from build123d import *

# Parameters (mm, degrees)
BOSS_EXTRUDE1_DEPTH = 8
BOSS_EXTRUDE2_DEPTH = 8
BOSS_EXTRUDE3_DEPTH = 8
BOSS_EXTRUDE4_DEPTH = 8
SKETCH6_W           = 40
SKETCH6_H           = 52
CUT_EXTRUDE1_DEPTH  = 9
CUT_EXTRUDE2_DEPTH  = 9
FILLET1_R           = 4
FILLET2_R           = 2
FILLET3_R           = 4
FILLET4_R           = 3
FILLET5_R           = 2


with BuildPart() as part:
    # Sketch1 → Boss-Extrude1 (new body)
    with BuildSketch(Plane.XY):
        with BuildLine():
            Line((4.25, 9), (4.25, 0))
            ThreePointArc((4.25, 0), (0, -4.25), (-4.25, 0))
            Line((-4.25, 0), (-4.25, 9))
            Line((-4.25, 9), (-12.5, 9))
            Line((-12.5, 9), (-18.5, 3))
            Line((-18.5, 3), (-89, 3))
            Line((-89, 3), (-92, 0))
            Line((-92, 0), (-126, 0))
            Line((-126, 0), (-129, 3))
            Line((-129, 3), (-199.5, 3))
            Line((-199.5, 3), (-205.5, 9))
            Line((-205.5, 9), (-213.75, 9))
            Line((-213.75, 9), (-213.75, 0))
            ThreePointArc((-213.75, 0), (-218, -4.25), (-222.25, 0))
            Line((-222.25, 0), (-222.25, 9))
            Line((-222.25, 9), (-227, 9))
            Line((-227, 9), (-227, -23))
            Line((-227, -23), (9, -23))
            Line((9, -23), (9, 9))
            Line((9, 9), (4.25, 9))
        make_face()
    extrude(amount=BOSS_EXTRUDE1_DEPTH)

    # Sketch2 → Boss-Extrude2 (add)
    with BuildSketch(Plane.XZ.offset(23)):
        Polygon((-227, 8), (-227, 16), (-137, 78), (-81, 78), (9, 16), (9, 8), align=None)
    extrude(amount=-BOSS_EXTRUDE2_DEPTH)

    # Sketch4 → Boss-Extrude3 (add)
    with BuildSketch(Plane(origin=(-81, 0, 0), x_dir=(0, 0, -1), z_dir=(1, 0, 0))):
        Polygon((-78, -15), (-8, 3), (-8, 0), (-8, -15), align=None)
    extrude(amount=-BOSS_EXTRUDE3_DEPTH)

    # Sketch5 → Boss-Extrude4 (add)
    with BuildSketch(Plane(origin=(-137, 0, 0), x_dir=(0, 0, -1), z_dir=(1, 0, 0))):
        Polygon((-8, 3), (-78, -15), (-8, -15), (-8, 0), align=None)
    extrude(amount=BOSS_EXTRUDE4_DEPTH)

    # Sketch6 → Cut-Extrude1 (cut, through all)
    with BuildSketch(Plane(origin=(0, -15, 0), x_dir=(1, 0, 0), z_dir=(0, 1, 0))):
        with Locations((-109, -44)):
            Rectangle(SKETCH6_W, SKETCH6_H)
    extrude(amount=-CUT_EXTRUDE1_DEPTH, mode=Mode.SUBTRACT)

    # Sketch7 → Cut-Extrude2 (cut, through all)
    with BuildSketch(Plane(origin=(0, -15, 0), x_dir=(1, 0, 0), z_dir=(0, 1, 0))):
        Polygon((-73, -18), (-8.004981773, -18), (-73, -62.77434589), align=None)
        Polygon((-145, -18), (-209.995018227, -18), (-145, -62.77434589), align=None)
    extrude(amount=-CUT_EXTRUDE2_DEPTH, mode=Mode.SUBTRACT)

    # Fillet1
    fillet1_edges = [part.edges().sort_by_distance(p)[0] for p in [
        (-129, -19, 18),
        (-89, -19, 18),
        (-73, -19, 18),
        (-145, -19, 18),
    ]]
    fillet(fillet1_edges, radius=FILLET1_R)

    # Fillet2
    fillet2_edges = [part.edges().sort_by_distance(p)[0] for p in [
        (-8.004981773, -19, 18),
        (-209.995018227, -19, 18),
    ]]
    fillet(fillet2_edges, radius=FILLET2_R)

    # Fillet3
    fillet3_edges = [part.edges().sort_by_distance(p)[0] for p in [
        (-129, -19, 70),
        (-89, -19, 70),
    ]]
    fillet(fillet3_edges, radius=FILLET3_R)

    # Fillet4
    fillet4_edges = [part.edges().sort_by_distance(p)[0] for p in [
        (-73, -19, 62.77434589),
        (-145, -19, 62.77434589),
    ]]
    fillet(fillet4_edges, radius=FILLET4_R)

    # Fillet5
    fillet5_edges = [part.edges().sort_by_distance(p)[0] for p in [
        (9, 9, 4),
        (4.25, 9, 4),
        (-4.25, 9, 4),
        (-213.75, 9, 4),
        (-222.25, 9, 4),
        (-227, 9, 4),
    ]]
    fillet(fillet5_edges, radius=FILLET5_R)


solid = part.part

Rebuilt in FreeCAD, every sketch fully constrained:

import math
import FreeCAD as App
import Part
import Sketcher

V = App.Vector


def edges_at(feature, points):
    """Names of the edges that pass closest to the given points."""
    edges = feature.Shape.Edges
    near = lambda p: min(range(len(edges)), key=lambda i: edges[i].distToShape(Part.Vertex(*p))[0])
    return sorted({f"Edge{near(p) + 1}" for p in points})

doc = App.newDocument("Part")
params = doc.addObject("Spreadsheet::Sheet", "Params")
for row, (alias, value) in enumerate([
    ("sketch1_width", "34 mm"),
    ("sketch1_width2", "236 mm"),
    ("sketch1_height", "9 mm"),
    ("sketch1_height2", "32 mm"),
    ("sketch1_radius", "4.25 mm"),
    ("pad1_length", "8 mm"),
    ("sketch2_width", "236 mm"),
    ("sketch2_width2", "56 mm"),
    ("sketch2_height", "8 mm"),
    ("pad2_length", "8 mm"),
    ("sketch3_width", "18 mm"),
    ("sketch3_height", "70 mm"),
    ("pad3_length", "8 mm"),
    ("sketch4_width", "18 mm"),
    ("sketch4_height", "70 mm"),
    ("pad4_length", "8 mm"),
    ("sketch5_width", "40 mm"),
    ("sketch5_height", "52 mm"),
    ("fillet_radius", "4 mm"),
    ("fillet2_radius", "2 mm"),
    ("fillet3_radius", "4 mm"),
    ("fillet4_radius", "3 mm"),
    ("fillet5_radius", "2 mm"),
], start=1):
    params.set(f"A{row}", alias)
    params.set(f"B{row}", "=" + value)
    params.setAlias(f"B{row}", alias)

body = doc.addObject("PartDesign::Body", "Body")

# Sketch on XY plane
sketch1 = doc.addObject("Sketcher::SketchObject", "Sketch")
body.addObject(sketch1)
sketch1.AttachmentSupport = (doc.XY_Plane, [""])
sketch1.MapMode = "FlatFace"
sketch1.addGeometry([
    Part.LineSegment(V(4.2, 9, 0), V(4.2, 0, 0)),  # 0
    Part.ArcOfCircle(Part.Circle(V(0, 0, 0), V(0, 0, 1), 4.2), math.radians(180), math.radians(360)),  # 1
    Part.LineSegment(V(-4.2, 0, 0), V(-4.2, 9, 0)),  # 2
    Part.LineSegment(V(-4.2, 9, 0), V(-12.5, 9, 0)),  # 3
    Part.LineSegment(V(-12.5, 9, 0), V(-18.5, 3, 0)),  # 4
    Part.LineSegment(V(-18.5, 3, 0), V(-89, 3, 0)),  # 5
    Part.LineSegment(V(-89, 3, 0), V(-92, 0, 0)),  # 6
    Part.LineSegment(V(-92, 0, 0), V(-126, 0, 0)),  # 7
    Part.LineSegment(V(-126, 0, 0), V(-129, 3, 0)),  # 8
    Part.LineSegment(V(-129, 3, 0), V(-199.5, 3, 0)),  # 9
    Part.LineSegment(V(-199.5, 3, 0), V(-205.5, 9, 0)),  # 10
    Part.LineSegment(V(-205.5, 9, 0), V(-213.8, 9, 0)),  # 11
    Part.LineSegment(V(-213.8, 9, 0), V(-213.8, 0, 0)),  # 12
    Part.ArcOfCircle(Part.Circle(V(-218, 0, 0), V(0, 0, 1), 4.2), math.radians(180), math.radians(360)),  # 13
    Part.LineSegment(V(-222.2, 0, 0), V(-222.2, 9, 0)),  # 14
    Part.LineSegment(V(-222.2, 9, 0), V(-227, 9, 0)),  # 15
    Part.LineSegment(V(-227, 9, 0), V(-227, -23, 0)),  # 16
    Part.LineSegment(V(-227, -23, 0), V(9, -23, 0)),  # 17
    Part.LineSegment(V(9, -23, 0), V(9, 9, 0)),  # 18
    Part.LineSegment(V(9, 9, 0), V(4.2, 9, 0)),  # 19
], False)
sketch1.addConstraint([
    Sketcher.Constraint("Tangent", 0, 2, 1, 2),
    Sketcher.Constraint("Tangent", 1, 1, 2, 1),
    Sketcher.Constraint("Coincident", 2, 2, 3, 1),
    Sketcher.Constraint("Coincident", 3, 2, 4, 1),
    Sketcher.Constraint("Coincident", 4, 2, 5, 1),
    Sketcher.Constraint("Coincident", 5, 2, 6, 1),
    Sketcher.Constraint("Coincident", 6, 2, 7, 1),
    Sketcher.Constraint("Coincident", 7, 2, 8, 1),
    Sketcher.Constraint("Coincident", 8, 2, 9, 1),
    Sketcher.Constraint("Coincident", 9, 2, 10, 1),
    Sketcher.Constraint("Coincident", 10, 2, 11, 1),
    Sketcher.Constraint("Coincident", 11, 2, 12, 1),
    Sketcher.Constraint("Tangent", 12, 2, 13, 2),
    Sketcher.Constraint("Tangent", 13, 1, 14, 1),
    Sketcher.Constraint("Coincident", 14, 2, 15, 1),
    Sketcher.Constraint("Coincident", 15, 2, 16, 1),
    Sketcher.Constraint("Coincident", 16, 2, 17, 1),
    Sketcher.Constraint("Coincident", 17, 2, 18, 1),
    Sketcher.Constraint("Coincident", 18, 2, 19, 1),
    Sketcher.Constraint("Coincident", 19, 2, 0, 1),
    Sketcher.Constraint("Vertical", 0),
    Sketcher.Constraint("Vertical", 2),
    Sketcher.Constraint("Horizontal", 3),
    Sketcher.Constraint("Horizontal", 5),
    Sketcher.Constraint("Horizontal", 7),
    Sketcher.Constraint("Horizontal", 9),
    Sketcher.Constraint("Horizontal", 11),
    Sketcher.Constraint("Vertical", 12),
    Sketcher.Constraint("Vertical", 14),
    Sketcher.Constraint("Horizontal", 15),
    Sketcher.Constraint("Vertical", 16),
    Sketcher.Constraint("Horizontal", 17),
    Sketcher.Constraint("Vertical", 18),
    Sketcher.Constraint("Horizontal", 19),
    Sketcher.Constraint("Coincident", 1, 3, -1, 1),
    Sketcher.Constraint("Equal", 1, 13),
    Sketcher.Constraint("PointOnObject", 13, 3, -1),
    Sketcher.Constraint("PointOnObject", 6, 2, -1),
    Sketcher.Constraint("Parallel", 4, 6),
    Sketcher.Constraint("Perpendicular", 6, 8),
    Sketcher.Constraint("Parallel", 8, 10),
    Sketcher.Constraint("Horizontal", 5, 2, 8, 2),
    Sketcher.Constraint("Horizontal", 3, 2, 10, 2),
    Sketcher.Constraint("Horizontal", 11, 2, 14, 2),
    Sketcher.Constraint("Horizontal", 15, 2, 18, 2),
    Sketcher.Constraint("Equal", 5, 9),
    Sketcher.Constraint("Equal", 3, 11),
    Sketcher.Constraint("Equal", 15, 19),
    Sketcher.Constraint("Equal", 6, 8),
    Sketcher.Constraint("DistanceX", 7, 2, 7, 1, 34.0),
    Sketcher.Constraint("DistanceX", 17, 1, 17, 2, 236.0),
    Sketcher.Constraint("DistanceY", 0, 2, 0, 1, 9.0),
    Sketcher.Constraint("DistanceY", 16, 2, 16, 1, 32.0),
    Sketcher.Constraint("Radius", 1, 4.25),
    Sketcher.Constraint("DistanceX", 5, 2, 5, 1, 70.5),
    Sketcher.Constraint("DistanceX", 13, 3, -1, 1, 218.0),
    Sketcher.Constraint("DistanceY", -1, 1, 4, 2, 3.0),
])
sketch1.setExpression("Constraints[49]", "Params.sketch1_width")
sketch1.setExpression("Constraints[50]", "Params.sketch1_width2")
sketch1.setExpression("Constraints[51]", "Params.sketch1_height")
sketch1.setExpression("Constraints[52]", "Params.sketch1_height2")
sketch1.setExpression("Constraints[53]", "Params.sketch1_radius")
pad1 = doc.addObject("PartDesign::Pad", "Pad")
body.addObject(pad1)
pad1.Profile = sketch1
pad1.setExpression("Length", "Params.pad1_length")

# Sketch on XZ plane
sketch2 = doc.addObject("Sketcher::SketchObject", "Sketch001")
body.addObject(sketch2)
sketch2.AttachmentSupport = (doc.XZ_Plane, [""])
sketch2.MapMode = "FlatFace"
sketch2.AttachmentOffset = App.Placement(V(0, 0, 23), App.Rotation())
sketch2.addGeometry([
    Part.LineSegment(V(-227, 16, 0), V(-227, 8, 0)),  # 0
    Part.LineSegment(V(-227, 8, 0), V(9, 8, 0)),  # 1
    Part.LineSegment(V(9, 8, 0), V(9, 16, 0)),  # 2
    Part.LineSegment(V(9, 16, 0), V(-81, 78, 0)),  # 3
    Part.LineSegment(V(-81, 78, 0), V(-137, 78, 0)),  # 4
    Part.LineSegment(V(-137, 78, 0), V(-227, 16, 0)),  # 5
], False)
sketch2.addConstraint([
    Sketcher.Constraint("Coincident", 0, 2, 1, 1),
    Sketcher.Constraint("Coincident", 1, 2, 2, 1),
    Sketcher.Constraint("Coincident", 2, 2, 3, 1),
    Sketcher.Constraint("Coincident", 3, 2, 4, 1),
    Sketcher.Constraint("Coincident", 4, 2, 5, 1),
    Sketcher.Constraint("Coincident", 5, 2, 0, 1),
    Sketcher.Constraint("Vertical", 0),
    Sketcher.Constraint("Horizontal", 1),
    Sketcher.Constraint("Vertical", 2),
    Sketcher.Constraint("Horizontal", 4),
    Sketcher.Constraint("Horizontal", 2, 2, 5, 2),
    Sketcher.Constraint("Equal", 3, 5),
    Sketcher.Constraint("DistanceX", 1, 1, 1, 2, 236.0),
    Sketcher.Constraint("DistanceX", 4, 2, 4, 1, 56.0),
    Sketcher.Constraint("DistanceY", 0, 2, 0, 1, 8.0),
    Sketcher.Constraint("DistanceX", 0, 2, -1, 1, 227.0),
    Sketcher.Constraint("DistanceY", -1, 1, 0, 2, 8.0),
    Sketcher.Constraint("DistanceY", -1, 1, 3, 2, 78.0),
])
sketch2.setExpression("Constraints[12]", "Params.sketch2_width")
sketch2.setExpression("Constraints[13]", "Params.sketch2_width2")
sketch2.setExpression("Constraints[14]", "Params.sketch2_height")
pad2 = doc.addObject("PartDesign::Pad", "Pad001")
body.addObject(pad2)
pad2.Profile = sketch2
pad2.setExpression("Length", "Params.pad2_length")
pad2.Reversed = True

# Sketch on YZ plane
sketch3 = doc.addObject("Sketcher::SketchObject", "Sketch002")
body.addObject(sketch3)
sketch3.AttachmentSupport = (doc.YZ_Plane, [""])
sketch3.MapMode = "FlatFace"
sketch3.AttachmentOffset = App.Placement(V(0, 0, -81), App.Rotation())
sketch3.addGeometry([
    Part.LineSegment(V(3, 8, 0), V(-15, 78, 0)),
    Part.LineSegment(V(-15, 78, 0), V(-15, 8, 0)),
    Part.LineSegment(V(-15, 8, 0), V(3, 8, 0)),
], False)
sketch3.addConstraint([
    Sketcher.Constraint("Coincident", 0, 2, 1, 1),
    Sketcher.Constraint("Coincident", 1, 2, 2, 1),
    Sketcher.Constraint("Coincident", 2, 2, 0, 1),
    Sketcher.Constraint("Vertical", 1),
    Sketcher.Constraint("Horizontal", 2),
    Sketcher.Constraint("DistanceX", 2, 1, 2, 2, 18.0),
    Sketcher.Constraint("DistanceY", 1, 2, 1, 1, 70.0),
    Sketcher.Constraint("DistanceX", 0, 2, -1, 1, 15.0),
    Sketcher.Constraint("DistanceY", -1, 1, 0, 2, 78.0),
])
sketch3.setExpression("Constraints[5]", "Params.sketch3_width")
sketch3.setExpression("Constraints[6]", "Params.sketch3_height")
pad3 = doc.addObject("PartDesign::Pad", "Pad002")
body.addObject(pad3)
pad3.Profile = sketch3
pad3.setExpression("Length", "Params.pad3_length")
pad3.Reversed = True

# Sketch on YZ plane
sketch4 = doc.addObject("Sketcher::SketchObject", "Sketch003")
body.addObject(sketch4)
sketch4.AttachmentSupport = (doc.YZ_Plane, [""])
sketch4.MapMode = "FlatFace"
sketch4.AttachmentOffset = App.Placement(V(0, 0, -137), App.Rotation())
sketch4.addGeometry([
    Part.LineSegment(V(3, 8, 0), V(-15, 78, 0)),
    Part.LineSegment(V(-15, 78, 0), V(-15, 8, 0)),
    Part.LineSegment(V(-15, 8, 0), V(3, 8, 0)),
], False)
sketch4.addConstraint([
    Sketcher.Constraint("Coincident", 0, 2, 1, 1),
    Sketcher.Constraint("Coincident", 1, 2, 2, 1),
    Sketcher.Constraint("Coincident", 2, 2, 0, 1),
    Sketcher.Constraint("Vertical", 1),
    Sketcher.Constraint("Horizontal", 2),
    Sketcher.Constraint("DistanceX", 2, 1, 2, 2, 18.0),
    Sketcher.Constraint("DistanceY", 1, 2, 1, 1, 70.0),
    Sketcher.Constraint("DistanceX", 0, 2, -1, 1, 15.0),
    Sketcher.Constraint("DistanceY", -1, 1, 0, 2, 78.0),
])
sketch4.setExpression("Constraints[5]", "Params.sketch4_width")
sketch4.setExpression("Constraints[6]", "Params.sketch4_height")
pad4 = doc.addObject("PartDesign::Pad", "Pad003")
body.addObject(pad4)
pad4.Profile = sketch4
pad4.setExpression("Length", "Params.pad4_length")

# Sketch on XZ plane
sketch5 = doc.addObject("Sketcher::SketchObject", "Sketch004")
body.addObject(sketch5)
sketch5.AttachmentSupport = (doc.XZ_Plane, [""])
sketch5.MapMode = "FlatFace"
sketch5.AttachmentOffset = App.Placement(V(0, 0, 15), App.Rotation())
sketch5.addGeometry([
    Part.LineSegment(V(-129, 18, 0), V(-129, 70, 0)),
    Part.LineSegment(V(-129, 70, 0), V(-89, 70, 0)),
    Part.LineSegment(V(-89, 70, 0), V(-89, 18, 0)),
    Part.LineSegment(V(-89, 18, 0), V(-129, 18, 0)),
], False)
sketch5.addConstraint([
    Sketcher.Constraint("Coincident", 0, 2, 1, 1),
    Sketcher.Constraint("Coincident", 1, 2, 2, 1),
    Sketcher.Constraint("Coincident", 2, 2, 3, 1),
    Sketcher.Constraint("Coincident", 3, 2, 0, 1),
    Sketcher.Constraint("Vertical", 0),
    Sketcher.Constraint("Horizontal", 1),
    Sketcher.Constraint("Vertical", 2),
    Sketcher.Constraint("Horizontal", 3),
    Sketcher.Constraint("DistanceX", 1, 1, 1, 2, 40.0),
    Sketcher.Constraint("DistanceY", 0, 1, 0, 2, 52.0),
    Sketcher.Constraint("DistanceX", 0, 2, -1, 1, 129.0),
    Sketcher.Constraint("DistanceY", -1, 1, 0, 2, 70.0),
])
sketch5.setExpression("Constraints[8]", "Params.sketch5_width")
sketch5.setExpression("Constraints[9]", "Params.sketch5_height")
pocket1 = doc.addObject("PartDesign::Pocket", "Pocket")
body.addObject(pocket1)
pocket1.Profile = sketch5
pocket1.Type = "ThroughAll"
pocket1.Reversed = True

# Sketch on XZ plane
sketch6 = doc.addObject("Sketcher::SketchObject", "Sketch005")
body.addObject(sketch6)
sketch6.AttachmentSupport = (doc.XZ_Plane, [""])
sketch6.MapMode = "FlatFace"
sketch6.AttachmentOffset = App.Placement(V(0, 0, 15), App.Rotation())
sketch6.addGeometry([
    Part.LineSegment(V(-8, 18, 0), V(-73, 18, 0)),  # 0
    Part.LineSegment(V(-73, 18, 0), V(-73, 63, 0)),  # 1
    Part.LineSegment(V(-73, 63, 0), V(-8, 18, 0)),  # 2
    Part.LineSegment(V(-145, 18, 0), V(-210, 18, 0)),  # 3
    Part.LineSegment(V(-210, 18, 0), V(-145, 63, 0)),  # 4
    Part.LineSegment(V(-145, 63, 0), V(-145, 18, 0)),  # 5
], False)
sketch6.addConstraint([
    Sketcher.Constraint("Coincident", 0, 2, 1, 1),
    Sketcher.Constraint("Coincident", 1, 2, 2, 1),
    Sketcher.Constraint("Coincident", 2, 2, 0, 1),
    Sketcher.Constraint("Coincident", 3, 2, 4, 1),
    Sketcher.Constraint("Coincident", 4, 2, 5, 1),
    Sketcher.Constraint("Coincident", 5, 2, 3, 1),
    Sketcher.Constraint("Horizontal", 0),
    Sketcher.Constraint("Vertical", 1),
    Sketcher.Constraint("Horizontal", 3),
    Sketcher.Constraint("Vertical", 5),
    Sketcher.Constraint("Horizontal", 2, 2, 3, 2),
    Sketcher.Constraint("Horizontal", 1, 2, 4, 2),
    Sketcher.Constraint("Equal", 0, 3),
    Sketcher.Constraint("DistanceX", 0, 2, -1, 1, 73.0),
    Sketcher.Constraint("DistanceY", -1, 1, 0, 2, 18.0),
    Sketcher.Constraint("DistanceX", 4, 2, -1, 1, 145.0),
    Sketcher.Constraint("DistanceX", 0, 2, 0, 1, 64.995018),
    Sketcher.Constraint("DistanceY", 1, 1, 1, 2, 44.774346),
])
pocket2 = doc.addObject("PartDesign::Pocket", "Pocket001")
body.addObject(pocket2)
pocket2.Profile = sketch6
pocket2.Type = "ThroughAll"
pocket2.Reversed = True
doc.recompute()

fillet = doc.addObject("PartDesign::Fillet", "Fillet")
body.addObject(fillet)
fillet.Base = (pocket2, edges_at(pocket2, [
    (-129, -19, 18),
    (-89, -19, 18),
    (-73, -19, 18),
    (-145, -19, 18),
]))
fillet.setExpression("Radius", "Params.fillet_radius")
doc.recompute()

fillet2 = doc.addObject("PartDesign::Fillet", "Fillet001")
body.addObject(fillet2)
fillet2.Base = (fillet, edges_at(fillet, [(-8.005, -19, 18), (-209.995, -19, 18)]))
fillet2.setExpression("Radius", "Params.fillet2_radius")
doc.recompute()

fillet3 = doc.addObject("PartDesign::Fillet", "Fillet002")
body.addObject(fillet3)
fillet3.Base = (fillet2, edges_at(fillet2, [(-129, -19, 70), (-89, -19, 70)]))
fillet3.setExpression("Radius", "Params.fillet3_radius")
doc.recompute()

fillet4 = doc.addObject("PartDesign::Fillet", "Fillet003")
body.addObject(fillet4)
fillet4.Base = (fillet3, edges_at(fillet3, [(-73, -19, 62.774), (-145, -19, 62.774)]))
fillet4.setExpression("Radius", "Params.fillet4_radius")
doc.recompute()

fillet5 = doc.addObject("PartDesign::Fillet", "Fillet004")
body.addObject(fillet5)
fillet5.Base = (fillet4, edges_at(fillet4, [
    (9, 9, 4),
    (4.25, 9, 4),
    (-4.25, 9, 4),
    (-213.75, 9, 4),
    (-222.25, 9, 4),
    (-227, 9, 4),
]))
fillet5.setExpression("Radius", "Params.fillet5_radius")

doc.recompute()
